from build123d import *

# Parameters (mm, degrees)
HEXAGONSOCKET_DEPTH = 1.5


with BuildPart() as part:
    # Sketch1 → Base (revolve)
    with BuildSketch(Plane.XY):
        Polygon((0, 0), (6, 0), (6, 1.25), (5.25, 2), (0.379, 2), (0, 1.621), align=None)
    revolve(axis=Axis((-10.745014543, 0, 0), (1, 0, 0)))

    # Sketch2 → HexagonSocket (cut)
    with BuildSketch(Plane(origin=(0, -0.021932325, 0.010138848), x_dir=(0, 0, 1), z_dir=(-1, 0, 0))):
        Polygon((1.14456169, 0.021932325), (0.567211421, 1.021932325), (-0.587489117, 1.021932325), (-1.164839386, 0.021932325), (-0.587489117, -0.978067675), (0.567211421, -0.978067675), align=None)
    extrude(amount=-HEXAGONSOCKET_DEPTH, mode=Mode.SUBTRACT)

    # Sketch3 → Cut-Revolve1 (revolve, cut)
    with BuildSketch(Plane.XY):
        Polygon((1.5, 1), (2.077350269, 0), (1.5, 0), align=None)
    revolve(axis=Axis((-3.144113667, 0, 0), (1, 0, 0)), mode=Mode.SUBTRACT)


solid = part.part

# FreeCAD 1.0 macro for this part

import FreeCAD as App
import Part
import Sketcher
from FreeCAD import Vector
Q = App.Units.Quantity

doc = App.newDocument("Part")
body = doc.addObject("PartDesign::Body", "Body")

# Sketch on XY plane
sketch1 = body.newObject("Sketcher::SketchObject", "Sketch")
sketch1.AttachmentSupport = (doc.getObject("XY_Plane"), [""])
sketch1.MapMode = "FlatFace"
sketch1.addGeometry(Part.LineSegment(Vector(0, 0, 0), Vector(6, 0, 0)), False)
sketch1.addGeometry(Part.LineSegment(Vector(6, 0, 0), Vector(6, 1.2, 0)), False)
sketch1.addGeometry(Part.LineSegment(Vector(6, 1.2, 0), Vector(5.2, 2, 0)), False)
sketch1.addGeometry(Part.LineSegment(Vector(5.2, 2, 0), Vector(0.4, 2, 0)), False)
sketch1.addGeometry(Part.LineSegment(Vector(0.4, 2, 0), Vector(0, 1.6, 0)), False)
sketch1.addGeometry(Part.LineSegment(Vector(0, 1.6, 0), Vector(0, 0, 0)), False)
sketch1.addConstraint(Sketcher.Constraint("Coincident", 0, 2, 1, 1))
sketch1.addConstraint(Sketcher.Constraint("Coincident", 1, 2, 2, 1))
sketch1.addConstraint(Sketcher.Constraint("Coincident", 2, 2, 3, 1))
sketch1.addConstraint(Sketcher.Constraint("Coincident", 3, 2, 4, 1))
sketch1.addConstraint(Sketcher.Constraint("Coincident", 4, 2, 5, 1))
sketch1.addConstraint(Sketcher.Constraint("Coincident", 5, 2, 0, 1))
sketch1.addConstraint(Sketcher.Constraint("Horizontal", 0))
sketch1.addConstraint(Sketcher.Constraint("Vertical", 1))
sketch1.addConstraint(Sketcher.Constraint("Horizontal", 3))
sketch1.addConstraint(Sketcher.Constraint("Vertical", 5))
sketch1.addConstraint(Sketcher.Constraint("Coincident", 5, 2, -1, 1))
sketch1.addConstraint(Sketcher.Constraint("Perpendicular", 2, 4))
sketch1.addConstraint(Sketcher.Constraint("DistanceX", 0, 1, 0, 2, 6.0))
sketch1.addConstraint(Sketcher.Constraint("Angle", 2, Q("135 deg")))
sketch1.addConstraint(Sketcher.Constraint("DistanceY", -1, 1, 2, 2, 2.0))
sketch1.addConstraint(Sketcher.Constraint("DistanceY", 1, 1, 1, 2, 1.25))
sketch1.addConstraint(Sketcher.Constraint("DistanceX", 3, 2, 3, 1, 4.871))
revolution = body.newObject("PartDesign::Revolution", "Revolution")
revolution.Profile = sketch1
revolution.ReferenceAxis = (sketch1, ["H_Axis"])
revolution.Angle = 360

# Sketch on YZ plane
sketch2 = body.newObject("Sketcher::SketchObject", "Sketch001")
sketch2.AttachmentSupport = (doc.getObject("YZ_Plane"), [""])
sketch2.MapMode = "FlatFace"
sketch2.addGeometry(Part.LineSegment(Vector(0, 1.2, 0), Vector(1, 0.6, 0)), False)
sketch2.addGeometry(Part.LineSegment(Vector(1, 0.6, 0), Vector(1, -0.6, 0)), False)
sketch2.addGeometry(Part.LineSegment(Vector(1, -0.6, 0), Vector(0, -1.2, 0)), False)
sketch2.addGeometry(Part.LineSegment(Vector(0, -1.2, 0), Vector(-1, -0.6, 0)), False)
sketch2.addGeometry(Part.LineSegment(Vector(-1, -0.6, 0), Vector(-1, 0.6, 0)), False)
sketch2.addGeometry(Part.LineSegment(Vector(-1, 0.6, 0), Vector(0, 1.2, 0)), False)
sketch2.addConstraint(Sketcher.Constraint("Coincident", 0, 2, 1, 1))
sketch2.addConstraint(Sketcher.Constraint("Coincident", 1, 2, 2, 1))
sketch2.addConstraint(Sketcher.Constraint("Coincident", 2, 2, 3, 1))
sketch2.addConstraint(Sketcher.Constraint("Coincident", 3, 2, 4, 1))
sketch2.addConstraint(Sketcher.Constraint("Coincident", 4, 2, 5, 1))
sketch2.addConstraint(Sketcher.Constraint("Coincident", 5, 2, 0, 1))
sketch2.addConstraint(Sketcher.Constraint("Vertical", 1))
sketch2.addConstraint(Sketcher.Constraint("Vertical", 4))
sketch2.addConstraint(Sketcher.Constraint("Symmetric", 0, 2, 3, 2, -1, 1))
sketch2.addConstraint(Sketcher.Constraint("Symmetric", 2, 2, 5, 2, -1, 1))
sketch2.addConstraint(Sketcher.Constraint("PointOnObject", 2, 2, -2))
sketch2.addConstraint(Sketcher.Constraint("Parallel", 2, 5))
sketch2.addConstraint(Sketcher.Constraint("Horizontal", 1, 2, 3, 2))
sketch2.addConstraint(Sketcher.Constraint("Angle", 0, Q("-30 deg")))
sketch2.addConstraint(Sketcher.Constraint("DistanceX", -1, 1, 0, 2, 1.0))
sketch2.addConstraint(Sketcher.Constraint("DistanceY", 1, 2, 1, 1, 1.154701))
pocket1 = body.newObject("PartDesign::Pocket", "Pocket")
pocket1.Profile = sketch2
pocket1.Length = 1.5
pocket1.Reversed = True

# Sketch on XY plane
sketch3 = body.newObject("Sketcher::SketchObject", "Sketch002")
sketch3.AttachmentSupport = (doc.getObject("XY_Plane"), [""])
sketch3.MapMode = "FlatFace"
sketch3.addGeometry(Part.LineSegment(Vector(2.1, 0, 0), Vector(1.5, 1, 0)), False)
sketch3.addGeometry(Part.LineSegment(Vector(1.5, 1, 0), Vector(1.5, 0, 0)), False)
sketch3.addGeometry(Part.LineSegment(Vector(1.5, 0, 0), Vector(2.1, 0, 0)), False)
sketch3.addConstraint(Sketcher.Constraint("Coincident", 0, 2, 1, 1))
sketch3.addConstraint(Sketcher.Constraint("Coincident", 1, 2, 2, 1))
sketch3.addConstraint(Sketcher.Constraint("Coincident", 2, 2, 0, 1))
sketch3.addConstraint(Sketcher.Constraint("Vertical", 1))
sketch3.addConstraint(Sketcher.Constraint("Horizontal", 2))
sketch3.addConstraint(Sketcher.Constraint("PointOnObject", 1, 2, -1))
sketch3.addConstraint(Sketcher.Constraint("DistanceY", 1, 2, 1, 1, 1.0))
sketch3.addConstraint(Sketcher.Constraint("Angle", 0, Q("120 deg")))
sketch3.addConstraint(Sketcher.Constraint("DistanceX", -1, 1, 0, 2, 1.5))
groove = body.newObject("PartDesign::Groove", "Groove")
groove.Profile = sketch3
groove.ReferenceAxis = (sketch3, ["H_Axis"])
groove.Angle = 360

doc.recompute()
